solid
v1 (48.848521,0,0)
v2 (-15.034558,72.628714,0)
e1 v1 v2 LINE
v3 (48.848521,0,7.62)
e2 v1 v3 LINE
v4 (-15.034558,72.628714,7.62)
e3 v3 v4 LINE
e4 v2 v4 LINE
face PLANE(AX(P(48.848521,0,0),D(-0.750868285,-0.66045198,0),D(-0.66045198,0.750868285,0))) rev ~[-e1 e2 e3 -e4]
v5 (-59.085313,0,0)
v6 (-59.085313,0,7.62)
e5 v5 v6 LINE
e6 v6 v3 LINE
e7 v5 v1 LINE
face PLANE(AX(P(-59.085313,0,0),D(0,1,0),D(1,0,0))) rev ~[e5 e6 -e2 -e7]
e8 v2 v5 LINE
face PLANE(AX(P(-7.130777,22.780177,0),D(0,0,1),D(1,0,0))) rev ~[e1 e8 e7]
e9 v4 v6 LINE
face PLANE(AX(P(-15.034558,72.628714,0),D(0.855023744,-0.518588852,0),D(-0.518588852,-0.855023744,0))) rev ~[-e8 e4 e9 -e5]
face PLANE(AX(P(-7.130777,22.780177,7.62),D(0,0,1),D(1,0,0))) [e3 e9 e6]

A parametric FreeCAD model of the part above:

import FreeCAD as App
import Part
import Sketcher

V = App.Vector
Q = App.Units.Quantity


def add_polygon(sketch, points):
    """Adds a closed chain of lines whose ends are joined by coincident constraints."""
    first, n = sketch.GeometryCount, len(points)
    for a, b in zip(points, points[1:] + points[:1]):
        sketch.addGeometry(Part.LineSegment(App.Vector(*a, 0), App.Vector(*b, 0)), False)
    for i in range(n):
        sketch.addConstraint(Sketcher.Constraint("Coincident", first + i, 2, first + (i + 1) % n, 1))

doc = App.newDocument("Part")
body = doc.addObject("PartDesign::Body", "Body")

sketch1 = body.newObject("Sketcher::SketchObject", "Sketch")
sketch1.AttachmentSupport = (doc.getObject("XY_Plane"), [""])
sketch1.MapMode = "FlatFace"
add_polygon(sketch1, [(-59, 0), (49, 0), (-15, 73)])
sketch1.addConstraint(Sketcher.Constraint("Horizontal", 0))
sketch1.addConstraint(Sketcher.Constraint("PointOnObject", 0, 2, -1))
sketch1.addConstraint(Sketcher.Constraint("DistanceX", 0, 1, 0, 2, Q("107.933834 mm")))
sketch1.addConstraint(Sketcher.Constraint("DistanceX", -1, 1, 0, 2, Q("48.848521 mm")))
sketch1.addConstraint(Sketcher.Constraint("DistanceX", 1, 2, 0, 2, Q("63.883079 mm")))
sketch1.addConstraint(Sketcher.Constraint("Distance", 1, Q("96.726304 mm")))
pad1 = body.newObject("PartDesign::Pad", "Pad")
pad1.Profile = sketch1
pad1.Length = Q("0.3 in")

doc.recompute()
